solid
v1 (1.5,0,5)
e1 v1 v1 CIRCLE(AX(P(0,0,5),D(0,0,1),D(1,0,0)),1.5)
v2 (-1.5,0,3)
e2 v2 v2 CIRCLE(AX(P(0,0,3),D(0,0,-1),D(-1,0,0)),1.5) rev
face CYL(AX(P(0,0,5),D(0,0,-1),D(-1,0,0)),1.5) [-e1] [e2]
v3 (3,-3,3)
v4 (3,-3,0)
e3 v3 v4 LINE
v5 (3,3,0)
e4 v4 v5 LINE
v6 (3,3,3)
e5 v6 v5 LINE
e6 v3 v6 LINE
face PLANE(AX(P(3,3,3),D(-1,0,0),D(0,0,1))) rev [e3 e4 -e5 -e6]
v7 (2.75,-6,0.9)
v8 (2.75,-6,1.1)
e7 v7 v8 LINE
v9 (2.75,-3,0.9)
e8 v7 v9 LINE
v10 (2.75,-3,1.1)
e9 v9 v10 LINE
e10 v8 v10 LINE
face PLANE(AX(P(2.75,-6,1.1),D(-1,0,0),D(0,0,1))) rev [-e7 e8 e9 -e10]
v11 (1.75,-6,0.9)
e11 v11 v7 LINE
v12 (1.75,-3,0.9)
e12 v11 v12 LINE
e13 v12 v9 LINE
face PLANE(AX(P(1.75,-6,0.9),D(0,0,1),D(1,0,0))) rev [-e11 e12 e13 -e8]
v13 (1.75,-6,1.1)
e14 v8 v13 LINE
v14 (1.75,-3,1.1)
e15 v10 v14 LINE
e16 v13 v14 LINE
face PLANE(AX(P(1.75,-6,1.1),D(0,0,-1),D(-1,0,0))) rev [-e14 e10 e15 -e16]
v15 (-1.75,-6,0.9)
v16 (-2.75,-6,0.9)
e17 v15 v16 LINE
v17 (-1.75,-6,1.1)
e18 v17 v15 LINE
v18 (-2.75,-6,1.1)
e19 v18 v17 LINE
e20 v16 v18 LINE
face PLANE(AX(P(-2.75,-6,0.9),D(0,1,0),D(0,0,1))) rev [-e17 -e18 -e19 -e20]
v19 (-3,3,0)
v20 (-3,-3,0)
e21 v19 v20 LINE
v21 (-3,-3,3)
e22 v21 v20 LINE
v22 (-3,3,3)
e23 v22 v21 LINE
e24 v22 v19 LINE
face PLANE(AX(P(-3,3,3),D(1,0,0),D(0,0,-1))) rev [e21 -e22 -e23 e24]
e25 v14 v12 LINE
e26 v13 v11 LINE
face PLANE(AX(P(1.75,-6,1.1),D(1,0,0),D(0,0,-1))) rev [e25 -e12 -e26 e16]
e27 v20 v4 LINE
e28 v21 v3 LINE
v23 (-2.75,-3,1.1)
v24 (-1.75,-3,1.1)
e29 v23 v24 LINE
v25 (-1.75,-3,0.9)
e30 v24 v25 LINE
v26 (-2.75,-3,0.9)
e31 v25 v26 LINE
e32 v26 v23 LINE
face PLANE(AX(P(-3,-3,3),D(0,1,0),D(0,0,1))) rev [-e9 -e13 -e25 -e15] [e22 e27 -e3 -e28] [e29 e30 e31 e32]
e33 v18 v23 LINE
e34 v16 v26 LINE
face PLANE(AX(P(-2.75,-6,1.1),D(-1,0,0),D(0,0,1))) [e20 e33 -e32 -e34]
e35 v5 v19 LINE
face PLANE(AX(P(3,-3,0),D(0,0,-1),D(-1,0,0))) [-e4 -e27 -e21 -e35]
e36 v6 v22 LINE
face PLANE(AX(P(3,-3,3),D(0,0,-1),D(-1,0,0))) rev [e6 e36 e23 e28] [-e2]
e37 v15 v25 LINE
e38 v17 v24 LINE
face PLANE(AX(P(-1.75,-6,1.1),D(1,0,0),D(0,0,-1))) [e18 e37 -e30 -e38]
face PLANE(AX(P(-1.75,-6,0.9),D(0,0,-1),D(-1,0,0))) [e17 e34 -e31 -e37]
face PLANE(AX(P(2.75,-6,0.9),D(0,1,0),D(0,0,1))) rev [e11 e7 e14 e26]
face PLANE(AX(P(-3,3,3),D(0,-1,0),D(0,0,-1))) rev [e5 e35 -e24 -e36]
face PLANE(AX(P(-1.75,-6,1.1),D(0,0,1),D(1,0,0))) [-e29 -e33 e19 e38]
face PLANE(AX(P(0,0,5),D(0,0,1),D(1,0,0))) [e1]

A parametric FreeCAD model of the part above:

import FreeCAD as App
import Part
import Sketcher

V = App.Vector

doc = App.newDocument("Part")
body = doc.addObject("PartDesign::Body", "Body")

# Sketch on XY plane
sketch1 = body.newObject("Sketcher::SketchObject", "Sketch")
sketch1.AttachmentSupport = (doc.getObject("XY_Plane"), [""])
sketch1.MapMode = "FlatFace"
sketch1.addGeometry([
    Part.LineSegment(V(-3, 3, 0), V(-3, -3, 0)),
    Part.LineSegment(V(-3, -3, 0), V(3, -3, 0)),
    Part.LineSegment(V(3, -3, 0), V(3, 3, 0)),
    Part.LineSegment(V(3, 3, 0), V(-3, 3, 0)),
], False)
sketch1.addConstraint([
    Sketcher.Constraint("Coincident", 0, 2, 1, 1),
    Sketcher.Constraint("Coincident", 1, 2, 2, 1),
    Sketcher.Constraint("Coincident", 2, 2, 3, 1),
    Sketcher.Constraint("Coincident", 3, 2, 0, 1),
    Sketcher.Constraint("Vertical", 0),
    Sketcher.Constraint("Horizontal", 1),
    Sketcher.Constraint("Vertical", 2),
    Sketcher.Constraint("Horizontal", 3),
    Sketcher.Constraint("Symmetric", 0, 2, 2, 2, -1, 1),
    Sketcher.Constraint("Equal", 3, 0),
    Sketcher.Constraint("DistanceX", 1, 1, 1, 2, 6.0),
])
pad1 = body.newObject("PartDesign::Pad", "Pad")
pad1.Profile = sketch1
pad1.Length = 3

# Sketch on XY plane
sketch2 = body.newObject("Sketcher::SketchObject", "Sketch001")
sketch2.AttachmentSupport = (doc.getObject("XY_Plane"), [""])
sketch2.MapMode = "FlatFace"
sketch2.AttachmentOffset = App.Placement(V(0, 0, 3), App.Rotation())
sketch2.addGeometry(Part.Circle(V(0, 0, 0), V(0, 0, 1), 1.5), False)
sketch2.addConstraint([
    Sketcher.Constraint("Coincident", 0, 3, -1, 1),
    Sketcher.Constraint("Diameter", 0, 3.0),
])
pad2 = body.newObject("PartDesign::Pad", "Pad001")
pad2.Profile = sketch2
pad2.Length = 2

# Sketch on XZ plane
sketch3 = body.newObject("Sketcher::SketchObject", "Sketch002")
sketch3.AttachmentSupport = (doc.getObject("XZ_Plane"), [""])
sketch3.MapMode = "FlatFace"
sketch3.AttachmentOffset = App.Placement(V(0, 0, 3), App.Rotation())
sketch3.addGeometry([
    Part.LineSegment(V(1.75, 1.1, 0), V(1.75, 0.9, 0)),
    Part.LineSegment(V(1.75, 0.9, 0), V(2.75, 0.9, 0)),
    Part.LineSegment(V(2.75, 0.9, 0), V(2.75, 1.1, 0)),
    Part.LineSegment(V(2.75, 1.1, 0), V(1.75, 1.1, 0)),
], False)
sketch3.addConstraint([
    Sketcher.Constraint("Coincident", 0, 2, 1, 1),
    Sketcher.Constraint("Coincident", 1, 2, 2, 1),
    Sketcher.Constraint("Coincident", 2, 2, 3, 1),
    Sketcher.Constraint("Coincident", 3, 2, 0, 1),
    Sketcher.Constraint("Vertical", 0),
    Sketcher.Constraint("Horizontal", 1),
    Sketcher.Constraint("Vertical", 2),
    Sketcher.Constraint("Horizontal", 3),
    Sketcher.Constraint("DistanceX", 1, 1, 1, 2, 1.0),
    Sketcher.Constraint("DistanceY", 0, 2, 0, 1, 0.2),
    Sketcher.Constraint("DistanceY", -1, 1, 0, 2, 0.9),
    Sketcher.Constraint("DistanceX", -1, 1, 0, 2, 1.75),
])

# Sketch on XY plane
sketch4 = body.newObject("Sketcher::SketchObject", "Sketch003")
sketch4.AttachmentSupport = (doc.getObject("XY_Plane"), [""])
sketch4.MapMode = "FlatFace"
sketch4.AttachmentOffset = App.Placement(V(0, 0, 1.1), App.Rotation())
sketch4.addGeometry(Part.LineSegment(V(2.2, -3, 0), V(2.2, -6, 0)), False)
sketch4.addConstraint([
    Sketcher.Constraint("Vertical", 0),
    Sketcher.Constraint("DistanceY", 0, 2, 0, 1, 3.0),
    Sketcher.Constraint("DistanceY", 0, 1, -1, 1, 3.0),
    Sketcher.Constraint("DistanceX", -1, 1, 0, 1, 2.25),
])
doc.recompute()

additivepipe = body.newObject("PartDesign::AdditivePipe", "AdditivePipe")
additivepipe.Profile = sketch3
additivepipe.Spine = (sketch4, ["Edge1"])
doc.recompute()

mirrored = body.newObject("PartDesign::Mirrored", "Mirrored")
mirrored.Originals = [additivepipe]
mirrored.MirrorPlane = (doc.getObject("YZ_Plane"), [""])
body.Tip = mirrored

doc.recompute()
